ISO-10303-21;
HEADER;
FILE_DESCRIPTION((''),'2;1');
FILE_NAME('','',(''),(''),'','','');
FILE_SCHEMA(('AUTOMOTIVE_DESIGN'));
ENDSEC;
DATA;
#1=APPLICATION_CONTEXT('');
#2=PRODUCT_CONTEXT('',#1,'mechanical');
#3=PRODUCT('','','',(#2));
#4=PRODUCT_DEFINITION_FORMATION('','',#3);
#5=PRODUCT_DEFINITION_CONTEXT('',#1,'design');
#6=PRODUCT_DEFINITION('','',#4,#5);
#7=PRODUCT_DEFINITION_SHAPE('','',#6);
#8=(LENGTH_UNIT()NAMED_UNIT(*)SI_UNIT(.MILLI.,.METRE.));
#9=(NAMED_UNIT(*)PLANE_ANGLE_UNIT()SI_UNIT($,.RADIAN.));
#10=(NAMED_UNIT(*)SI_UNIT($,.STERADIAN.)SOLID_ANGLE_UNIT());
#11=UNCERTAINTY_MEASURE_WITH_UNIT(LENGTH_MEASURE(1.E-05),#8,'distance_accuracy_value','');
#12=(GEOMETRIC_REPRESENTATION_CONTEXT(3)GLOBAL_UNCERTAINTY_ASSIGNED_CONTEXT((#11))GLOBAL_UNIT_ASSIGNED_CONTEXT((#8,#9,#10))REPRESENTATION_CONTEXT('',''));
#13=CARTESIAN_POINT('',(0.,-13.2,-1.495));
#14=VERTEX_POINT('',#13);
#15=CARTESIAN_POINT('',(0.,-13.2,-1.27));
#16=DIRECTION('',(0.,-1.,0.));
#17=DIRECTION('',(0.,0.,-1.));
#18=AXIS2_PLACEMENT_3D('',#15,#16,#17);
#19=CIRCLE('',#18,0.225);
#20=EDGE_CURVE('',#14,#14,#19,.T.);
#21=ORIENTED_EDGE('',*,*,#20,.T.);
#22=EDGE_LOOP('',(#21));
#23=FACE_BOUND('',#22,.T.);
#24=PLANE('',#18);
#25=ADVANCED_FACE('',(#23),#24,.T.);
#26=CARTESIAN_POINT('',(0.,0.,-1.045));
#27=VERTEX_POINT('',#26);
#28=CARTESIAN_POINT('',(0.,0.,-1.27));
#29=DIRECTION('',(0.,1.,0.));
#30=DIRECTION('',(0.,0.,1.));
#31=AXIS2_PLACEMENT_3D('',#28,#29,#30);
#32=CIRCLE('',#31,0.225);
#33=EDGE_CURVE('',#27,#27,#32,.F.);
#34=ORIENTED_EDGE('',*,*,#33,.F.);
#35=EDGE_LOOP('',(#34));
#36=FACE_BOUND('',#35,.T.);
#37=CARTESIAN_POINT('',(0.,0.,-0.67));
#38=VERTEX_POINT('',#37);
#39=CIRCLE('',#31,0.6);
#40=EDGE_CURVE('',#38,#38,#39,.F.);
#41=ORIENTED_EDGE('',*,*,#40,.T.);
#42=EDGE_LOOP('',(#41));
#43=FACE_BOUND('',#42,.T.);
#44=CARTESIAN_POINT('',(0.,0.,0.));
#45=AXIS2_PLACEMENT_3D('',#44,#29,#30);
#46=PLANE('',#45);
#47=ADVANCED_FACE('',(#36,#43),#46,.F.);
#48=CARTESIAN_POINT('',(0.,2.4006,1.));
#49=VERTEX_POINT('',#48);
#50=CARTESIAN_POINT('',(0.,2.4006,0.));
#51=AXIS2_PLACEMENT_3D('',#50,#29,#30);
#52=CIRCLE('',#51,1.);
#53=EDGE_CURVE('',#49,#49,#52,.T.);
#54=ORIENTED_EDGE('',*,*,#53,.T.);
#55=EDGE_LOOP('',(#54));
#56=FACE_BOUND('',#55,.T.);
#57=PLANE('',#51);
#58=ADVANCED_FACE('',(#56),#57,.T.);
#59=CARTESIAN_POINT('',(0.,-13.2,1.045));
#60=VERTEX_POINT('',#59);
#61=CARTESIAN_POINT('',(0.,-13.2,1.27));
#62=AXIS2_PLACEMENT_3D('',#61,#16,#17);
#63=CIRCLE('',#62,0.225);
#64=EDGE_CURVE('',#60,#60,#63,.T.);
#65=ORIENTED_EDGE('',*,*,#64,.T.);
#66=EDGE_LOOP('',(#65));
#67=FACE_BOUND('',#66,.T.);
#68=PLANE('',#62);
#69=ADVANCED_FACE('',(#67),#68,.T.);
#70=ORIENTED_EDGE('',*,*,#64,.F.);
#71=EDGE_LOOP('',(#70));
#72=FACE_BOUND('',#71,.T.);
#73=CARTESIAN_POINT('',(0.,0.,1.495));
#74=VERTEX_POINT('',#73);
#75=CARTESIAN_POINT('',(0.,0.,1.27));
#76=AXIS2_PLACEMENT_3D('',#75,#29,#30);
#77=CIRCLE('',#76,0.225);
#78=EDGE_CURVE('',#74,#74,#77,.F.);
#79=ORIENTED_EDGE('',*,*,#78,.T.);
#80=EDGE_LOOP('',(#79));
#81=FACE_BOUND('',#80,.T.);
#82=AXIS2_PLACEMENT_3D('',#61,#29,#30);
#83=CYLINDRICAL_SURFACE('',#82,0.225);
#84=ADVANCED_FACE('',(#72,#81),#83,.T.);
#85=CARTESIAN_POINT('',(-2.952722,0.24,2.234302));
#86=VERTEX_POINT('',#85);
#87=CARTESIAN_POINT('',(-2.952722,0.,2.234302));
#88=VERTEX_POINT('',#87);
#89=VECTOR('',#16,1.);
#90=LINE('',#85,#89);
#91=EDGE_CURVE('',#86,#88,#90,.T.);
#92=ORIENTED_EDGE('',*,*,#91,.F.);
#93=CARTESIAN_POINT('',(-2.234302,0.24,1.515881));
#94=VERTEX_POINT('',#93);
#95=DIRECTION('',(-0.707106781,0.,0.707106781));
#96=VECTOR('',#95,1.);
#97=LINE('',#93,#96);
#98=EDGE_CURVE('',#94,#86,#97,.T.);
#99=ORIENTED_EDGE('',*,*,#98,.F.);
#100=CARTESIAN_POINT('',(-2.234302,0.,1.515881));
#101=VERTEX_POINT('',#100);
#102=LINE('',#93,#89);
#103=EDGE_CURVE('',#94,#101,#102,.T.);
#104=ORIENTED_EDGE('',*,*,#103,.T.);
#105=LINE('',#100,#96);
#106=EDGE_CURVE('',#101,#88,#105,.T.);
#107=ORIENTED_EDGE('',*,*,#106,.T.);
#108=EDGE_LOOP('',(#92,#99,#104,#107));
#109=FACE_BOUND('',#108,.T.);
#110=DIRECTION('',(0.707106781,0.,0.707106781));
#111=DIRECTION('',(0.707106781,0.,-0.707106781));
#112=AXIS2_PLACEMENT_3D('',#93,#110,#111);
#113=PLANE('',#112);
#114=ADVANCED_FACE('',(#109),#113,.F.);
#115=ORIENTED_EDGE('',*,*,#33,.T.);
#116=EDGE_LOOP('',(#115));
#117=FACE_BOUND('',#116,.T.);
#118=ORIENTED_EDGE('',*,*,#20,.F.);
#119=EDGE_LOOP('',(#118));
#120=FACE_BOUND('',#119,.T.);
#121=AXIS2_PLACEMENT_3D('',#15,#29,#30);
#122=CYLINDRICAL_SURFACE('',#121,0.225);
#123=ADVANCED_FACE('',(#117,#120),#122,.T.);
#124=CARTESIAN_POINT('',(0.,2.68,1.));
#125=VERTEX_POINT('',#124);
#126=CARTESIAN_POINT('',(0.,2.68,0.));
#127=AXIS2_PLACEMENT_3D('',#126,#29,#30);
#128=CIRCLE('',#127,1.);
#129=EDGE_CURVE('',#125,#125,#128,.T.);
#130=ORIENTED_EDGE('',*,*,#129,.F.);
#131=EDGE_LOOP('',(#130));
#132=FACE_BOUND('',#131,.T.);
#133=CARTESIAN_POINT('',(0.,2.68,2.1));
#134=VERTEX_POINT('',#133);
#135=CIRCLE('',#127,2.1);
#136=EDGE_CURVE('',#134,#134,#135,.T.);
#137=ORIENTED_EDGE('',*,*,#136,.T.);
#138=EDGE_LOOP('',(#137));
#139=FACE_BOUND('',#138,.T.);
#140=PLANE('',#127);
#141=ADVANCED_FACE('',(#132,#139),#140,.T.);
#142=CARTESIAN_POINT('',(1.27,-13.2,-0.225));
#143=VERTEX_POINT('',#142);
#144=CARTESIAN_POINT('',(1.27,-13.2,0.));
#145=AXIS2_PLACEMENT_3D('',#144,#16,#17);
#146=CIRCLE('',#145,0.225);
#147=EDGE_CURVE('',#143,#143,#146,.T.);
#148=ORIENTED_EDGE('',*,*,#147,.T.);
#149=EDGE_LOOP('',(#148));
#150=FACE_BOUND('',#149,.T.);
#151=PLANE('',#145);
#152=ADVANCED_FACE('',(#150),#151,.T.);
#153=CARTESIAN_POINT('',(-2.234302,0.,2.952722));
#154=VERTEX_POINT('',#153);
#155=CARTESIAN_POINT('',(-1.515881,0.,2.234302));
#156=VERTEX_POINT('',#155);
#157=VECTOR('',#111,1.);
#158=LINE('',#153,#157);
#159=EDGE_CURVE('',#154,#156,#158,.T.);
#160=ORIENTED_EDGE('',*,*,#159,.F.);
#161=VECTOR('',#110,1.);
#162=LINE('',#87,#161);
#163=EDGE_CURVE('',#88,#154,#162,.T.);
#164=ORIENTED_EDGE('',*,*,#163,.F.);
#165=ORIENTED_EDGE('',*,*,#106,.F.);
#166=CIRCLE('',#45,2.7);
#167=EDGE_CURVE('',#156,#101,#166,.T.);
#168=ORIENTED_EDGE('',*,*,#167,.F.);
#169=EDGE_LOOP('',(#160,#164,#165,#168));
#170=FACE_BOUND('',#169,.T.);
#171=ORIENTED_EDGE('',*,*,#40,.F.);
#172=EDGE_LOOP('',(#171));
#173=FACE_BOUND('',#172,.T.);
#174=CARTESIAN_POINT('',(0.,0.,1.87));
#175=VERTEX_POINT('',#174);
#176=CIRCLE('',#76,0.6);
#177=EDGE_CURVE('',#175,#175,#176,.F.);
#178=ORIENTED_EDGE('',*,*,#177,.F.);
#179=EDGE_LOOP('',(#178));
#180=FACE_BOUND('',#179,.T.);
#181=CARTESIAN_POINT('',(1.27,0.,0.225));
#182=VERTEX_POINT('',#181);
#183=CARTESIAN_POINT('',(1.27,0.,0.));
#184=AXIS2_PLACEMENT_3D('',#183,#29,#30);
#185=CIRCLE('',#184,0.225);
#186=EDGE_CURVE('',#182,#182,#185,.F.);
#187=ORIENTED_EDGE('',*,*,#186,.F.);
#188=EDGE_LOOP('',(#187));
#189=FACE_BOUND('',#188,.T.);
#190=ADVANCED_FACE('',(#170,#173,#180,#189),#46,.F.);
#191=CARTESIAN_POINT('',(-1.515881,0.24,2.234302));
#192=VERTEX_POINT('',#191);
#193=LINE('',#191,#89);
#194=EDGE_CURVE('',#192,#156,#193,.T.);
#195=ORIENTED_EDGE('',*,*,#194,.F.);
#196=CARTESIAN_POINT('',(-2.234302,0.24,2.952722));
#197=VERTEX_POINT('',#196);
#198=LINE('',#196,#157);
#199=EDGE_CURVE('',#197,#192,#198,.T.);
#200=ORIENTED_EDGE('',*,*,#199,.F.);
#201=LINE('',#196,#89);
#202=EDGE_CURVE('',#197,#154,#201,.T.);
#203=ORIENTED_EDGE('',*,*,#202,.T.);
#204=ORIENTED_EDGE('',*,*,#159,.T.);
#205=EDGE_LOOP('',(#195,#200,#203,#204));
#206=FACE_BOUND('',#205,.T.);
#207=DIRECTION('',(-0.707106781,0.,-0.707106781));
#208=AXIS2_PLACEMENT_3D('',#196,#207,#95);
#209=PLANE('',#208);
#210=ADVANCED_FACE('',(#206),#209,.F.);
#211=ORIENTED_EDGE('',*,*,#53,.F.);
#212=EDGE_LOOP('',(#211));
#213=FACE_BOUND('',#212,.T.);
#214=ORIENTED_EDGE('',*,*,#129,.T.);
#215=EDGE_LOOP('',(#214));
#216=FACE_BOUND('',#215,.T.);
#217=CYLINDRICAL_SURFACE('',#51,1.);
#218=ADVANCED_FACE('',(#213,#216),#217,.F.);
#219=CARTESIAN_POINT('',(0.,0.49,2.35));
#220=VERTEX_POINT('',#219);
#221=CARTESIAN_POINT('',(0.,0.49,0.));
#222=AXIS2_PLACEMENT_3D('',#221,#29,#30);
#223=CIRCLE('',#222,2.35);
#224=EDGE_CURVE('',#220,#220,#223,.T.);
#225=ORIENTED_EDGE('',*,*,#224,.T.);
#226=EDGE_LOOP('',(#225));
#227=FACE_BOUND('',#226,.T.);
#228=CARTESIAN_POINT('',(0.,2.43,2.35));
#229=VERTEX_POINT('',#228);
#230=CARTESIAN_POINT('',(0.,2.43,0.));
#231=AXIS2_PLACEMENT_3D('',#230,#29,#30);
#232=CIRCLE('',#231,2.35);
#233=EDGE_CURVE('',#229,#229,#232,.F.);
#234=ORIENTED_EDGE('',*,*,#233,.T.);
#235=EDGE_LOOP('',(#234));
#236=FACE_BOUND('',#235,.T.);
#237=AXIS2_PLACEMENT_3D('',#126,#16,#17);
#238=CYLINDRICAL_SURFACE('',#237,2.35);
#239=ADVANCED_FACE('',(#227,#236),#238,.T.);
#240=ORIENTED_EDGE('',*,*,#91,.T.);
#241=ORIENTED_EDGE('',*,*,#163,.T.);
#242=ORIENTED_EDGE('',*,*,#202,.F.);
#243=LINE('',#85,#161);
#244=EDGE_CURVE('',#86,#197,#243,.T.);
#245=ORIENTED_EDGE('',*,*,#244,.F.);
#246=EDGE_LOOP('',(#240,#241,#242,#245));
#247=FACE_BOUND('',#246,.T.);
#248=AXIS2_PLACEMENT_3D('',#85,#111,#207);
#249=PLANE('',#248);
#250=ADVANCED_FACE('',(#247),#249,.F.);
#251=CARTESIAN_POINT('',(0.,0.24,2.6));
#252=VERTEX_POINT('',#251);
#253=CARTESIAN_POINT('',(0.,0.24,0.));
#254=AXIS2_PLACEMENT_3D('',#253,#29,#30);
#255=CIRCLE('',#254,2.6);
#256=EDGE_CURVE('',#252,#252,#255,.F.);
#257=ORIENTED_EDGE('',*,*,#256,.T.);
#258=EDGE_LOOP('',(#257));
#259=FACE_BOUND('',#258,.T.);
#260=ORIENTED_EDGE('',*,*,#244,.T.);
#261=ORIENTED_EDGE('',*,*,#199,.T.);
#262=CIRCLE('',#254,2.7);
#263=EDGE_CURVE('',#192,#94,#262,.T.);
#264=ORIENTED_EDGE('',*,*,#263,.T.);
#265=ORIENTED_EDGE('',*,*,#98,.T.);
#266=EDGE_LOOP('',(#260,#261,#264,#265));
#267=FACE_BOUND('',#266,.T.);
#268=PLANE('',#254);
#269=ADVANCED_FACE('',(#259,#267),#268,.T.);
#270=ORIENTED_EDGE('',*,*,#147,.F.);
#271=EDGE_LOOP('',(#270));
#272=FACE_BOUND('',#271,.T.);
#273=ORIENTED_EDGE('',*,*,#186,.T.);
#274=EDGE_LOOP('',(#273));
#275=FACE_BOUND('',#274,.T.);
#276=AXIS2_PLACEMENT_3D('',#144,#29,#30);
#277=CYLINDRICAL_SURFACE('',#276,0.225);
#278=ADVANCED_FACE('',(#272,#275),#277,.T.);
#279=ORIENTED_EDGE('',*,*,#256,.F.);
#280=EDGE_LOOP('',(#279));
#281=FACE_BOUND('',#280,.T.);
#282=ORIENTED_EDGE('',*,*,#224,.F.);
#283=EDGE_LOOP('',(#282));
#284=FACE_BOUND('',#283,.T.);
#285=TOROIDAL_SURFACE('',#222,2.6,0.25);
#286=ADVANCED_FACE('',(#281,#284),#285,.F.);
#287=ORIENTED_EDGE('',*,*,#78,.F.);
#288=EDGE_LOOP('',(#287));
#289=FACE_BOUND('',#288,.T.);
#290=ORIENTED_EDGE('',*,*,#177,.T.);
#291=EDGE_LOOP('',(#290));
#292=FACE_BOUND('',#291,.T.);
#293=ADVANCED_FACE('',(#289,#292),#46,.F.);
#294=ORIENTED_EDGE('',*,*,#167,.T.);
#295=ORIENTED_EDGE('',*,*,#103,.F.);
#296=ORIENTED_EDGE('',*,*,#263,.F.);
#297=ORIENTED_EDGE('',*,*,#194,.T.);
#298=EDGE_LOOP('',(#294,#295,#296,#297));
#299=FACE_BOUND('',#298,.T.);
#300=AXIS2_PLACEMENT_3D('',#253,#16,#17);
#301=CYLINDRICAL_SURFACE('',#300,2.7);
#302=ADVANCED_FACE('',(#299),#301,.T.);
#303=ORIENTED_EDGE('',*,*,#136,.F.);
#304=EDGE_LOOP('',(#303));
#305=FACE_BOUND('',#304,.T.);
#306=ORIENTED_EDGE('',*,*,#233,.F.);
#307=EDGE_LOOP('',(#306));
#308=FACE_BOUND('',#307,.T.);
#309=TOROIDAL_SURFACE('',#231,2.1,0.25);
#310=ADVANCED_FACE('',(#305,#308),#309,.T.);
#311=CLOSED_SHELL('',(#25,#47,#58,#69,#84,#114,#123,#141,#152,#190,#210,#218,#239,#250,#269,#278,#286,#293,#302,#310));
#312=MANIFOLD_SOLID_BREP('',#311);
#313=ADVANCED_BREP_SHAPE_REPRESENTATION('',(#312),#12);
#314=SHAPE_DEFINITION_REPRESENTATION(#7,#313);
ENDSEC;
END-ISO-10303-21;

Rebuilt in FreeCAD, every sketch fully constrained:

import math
import FreeCAD as App
import Part
import Sketcher

V = App.Vector
Q = App.Units.Quantity


def edges_at(feature, points):
    """Names of the edges that pass closest to the given points."""
    edges = feature.Shape.Edges
    near = lambda p: min(range(len(edges)), key=lambda i: edges[i].distToShape(Part.Vertex(*p))[0])
    return sorted({f"Edge{near(p) + 1}" for p in points})

doc = App.newDocument("Part")
body = doc.addObject("PartDesign::Body", "Body")

sketch1 = body.newObject("Sketcher::SketchObject", "Sketch")
sketch1.AttachmentSupport = (doc.getObject("XZ_Plane"), [""])
sketch1.MapMode = "FlatFace"
sketch1.addGeometry([
    Part.LineSegment(V(-2.2, 1.5, 0), V(-3, 2.2, 0)),
    Part.LineSegment(V(-3, 2.2, 0), V(-2.2, 3, 0)),
    Part.LineSegment(V(-2.2, 3, 0), V(-1.5, 2.2, 0)),
    Part.ArcOfCircle(Part.Circle(V(0, 0, 0), V(0, 0, 1), 2.7), math.radians(146), math.radians(484)),
], False)
sketch1.addConstraint([
    Sketcher.Constraint("Coincident", 0, 2, 1, 1),
    Sketcher.Constraint("Coincident", 1, 2, 2, 1),
    Sketcher.Constraint("Coincident", 2, 2, 3, 2),
    Sketcher.Constraint("Coincident", 3, 1, 0, 1),
    Sketcher.Constraint("Coincident", 3, 3, -1, 1),
    Sketcher.Constraint("Perpendicular", 0, 1),
    Sketcher.Constraint("Perpendicular", 1, 2),
    Sketcher.Constraint("Horizontal", 0, 2, 2, 2),
    Sketcher.Constraint("Vertical", 1, 2, 3, 1),
    Sketcher.Constraint("Equal", 0, 1),
    Sketcher.Constraint("Radius", 3, Q("2.7 mm")),
    Sketcher.Constraint("Distance", 0, Q("1.016 mm")),
])
pad1 = body.newObject("PartDesign::Pad", "Pad")
pad1.Profile = sketch1
pad1.Length = 0.24
pad1.Reversed = True

sketch2 = body.newObject("Sketcher::SketchObject", "Sketch001")
sketch2.AttachmentSupport = (doc.getObject("XZ_Plane"), [""])
sketch2.MapMode = "FlatFace"
sketch2.AttachmentOffset = App.Placement(V(0, 0, -0.24), App.Rotation())
sketch2.addGeometry(Part.Circle(V(0, 0, 0), V(0, 0, 1), 2.4), False)
sketch2.addConstraint([
    Sketcher.Constraint("Coincident", 0, 3, -1, 1),
    Sketcher.Constraint("Diameter", 0, Q("4.7 mm")),
])
pad2 = body.newObject("PartDesign::Pad", "Pad001")
pad2.Profile = sketch2
pad2.Length = 2.44
pad2.Reversed = True

sketch3 = body.newObject("Sketcher::SketchObject", "Sketch002")
sketch3.AttachmentSupport = (doc.getObject("XZ_Plane"), [""])
sketch3.MapMode = "FlatFace"
sketch3.AttachmentOffset = App.Placement(V(0, 0, -2.68), App.Rotation())
sketch3.addGeometry(Part.Circle(V(0, 0, 0), V(0, 0, 1), 1), False)
sketch3.addConstraint([
    Sketcher.Constraint("Coincident", 0, 3, -1, 1),
    Sketcher.Constraint("Diameter", 0, Q("2 mm")),
])
pocket1 = body.newObject("PartDesign::Pocket", "Pocket")
pocket1.Profile = sketch3
pocket1.Length = 0.2794
pocket1.Reversed = True

sketch4 = body.newObject("Sketcher::SketchObject", "Sketch003")
sketch4.AttachmentSupport = (doc.getObject("XZ_Plane"), [""])
sketch4.MapMode = "FlatFace"
sketch4.addGeometry([
    Part.Circle(V(0, 1.27, 0), V(0, 0, 1), 0.23),
    Part.Circle(V(0, -1.27, 0), V(0, 0, 1), 0.23),
    Part.Circle(V(1.27, 0, 0), V(0, 0, 1), 0.23),
], False)
sketch4.addConstraint([
    Sketcher.Constraint("Equal", 0, 1),
    Sketcher.Constraint("Equal", 1, 2),
    Sketcher.Constraint("Symmetric", 0, 3, 1, 3, -1, 1),
    Sketcher.Constraint("PointOnObject", 0, 3, -2),
    Sketcher.Constraint("PointOnObject", 2, 3, -1),
    Sketcher.Constraint("Diameter", 0, Q("0.45 mm")),
    Sketcher.Constraint("DistanceY", -1, 1, 0, 3, Q("1.27 mm")),
    Sketcher.Constraint("DistanceX", -1, 1, 2, 3, Q("1.27 mm")),
])
pad3 = body.newObject("PartDesign::Pad", "Pad002")
pad3.Profile = sketch4
pad3.Length = 13.2
doc.recompute()

fillet = body.newObject("PartDesign::Fillet", "Fillet")
fillet.Base = (pad3, edges_at(pad3, [(0, 0.24, -2.35), (0, 2.68, -2.35)]))
fillet.Radius = 0.25

doc.recompute()
